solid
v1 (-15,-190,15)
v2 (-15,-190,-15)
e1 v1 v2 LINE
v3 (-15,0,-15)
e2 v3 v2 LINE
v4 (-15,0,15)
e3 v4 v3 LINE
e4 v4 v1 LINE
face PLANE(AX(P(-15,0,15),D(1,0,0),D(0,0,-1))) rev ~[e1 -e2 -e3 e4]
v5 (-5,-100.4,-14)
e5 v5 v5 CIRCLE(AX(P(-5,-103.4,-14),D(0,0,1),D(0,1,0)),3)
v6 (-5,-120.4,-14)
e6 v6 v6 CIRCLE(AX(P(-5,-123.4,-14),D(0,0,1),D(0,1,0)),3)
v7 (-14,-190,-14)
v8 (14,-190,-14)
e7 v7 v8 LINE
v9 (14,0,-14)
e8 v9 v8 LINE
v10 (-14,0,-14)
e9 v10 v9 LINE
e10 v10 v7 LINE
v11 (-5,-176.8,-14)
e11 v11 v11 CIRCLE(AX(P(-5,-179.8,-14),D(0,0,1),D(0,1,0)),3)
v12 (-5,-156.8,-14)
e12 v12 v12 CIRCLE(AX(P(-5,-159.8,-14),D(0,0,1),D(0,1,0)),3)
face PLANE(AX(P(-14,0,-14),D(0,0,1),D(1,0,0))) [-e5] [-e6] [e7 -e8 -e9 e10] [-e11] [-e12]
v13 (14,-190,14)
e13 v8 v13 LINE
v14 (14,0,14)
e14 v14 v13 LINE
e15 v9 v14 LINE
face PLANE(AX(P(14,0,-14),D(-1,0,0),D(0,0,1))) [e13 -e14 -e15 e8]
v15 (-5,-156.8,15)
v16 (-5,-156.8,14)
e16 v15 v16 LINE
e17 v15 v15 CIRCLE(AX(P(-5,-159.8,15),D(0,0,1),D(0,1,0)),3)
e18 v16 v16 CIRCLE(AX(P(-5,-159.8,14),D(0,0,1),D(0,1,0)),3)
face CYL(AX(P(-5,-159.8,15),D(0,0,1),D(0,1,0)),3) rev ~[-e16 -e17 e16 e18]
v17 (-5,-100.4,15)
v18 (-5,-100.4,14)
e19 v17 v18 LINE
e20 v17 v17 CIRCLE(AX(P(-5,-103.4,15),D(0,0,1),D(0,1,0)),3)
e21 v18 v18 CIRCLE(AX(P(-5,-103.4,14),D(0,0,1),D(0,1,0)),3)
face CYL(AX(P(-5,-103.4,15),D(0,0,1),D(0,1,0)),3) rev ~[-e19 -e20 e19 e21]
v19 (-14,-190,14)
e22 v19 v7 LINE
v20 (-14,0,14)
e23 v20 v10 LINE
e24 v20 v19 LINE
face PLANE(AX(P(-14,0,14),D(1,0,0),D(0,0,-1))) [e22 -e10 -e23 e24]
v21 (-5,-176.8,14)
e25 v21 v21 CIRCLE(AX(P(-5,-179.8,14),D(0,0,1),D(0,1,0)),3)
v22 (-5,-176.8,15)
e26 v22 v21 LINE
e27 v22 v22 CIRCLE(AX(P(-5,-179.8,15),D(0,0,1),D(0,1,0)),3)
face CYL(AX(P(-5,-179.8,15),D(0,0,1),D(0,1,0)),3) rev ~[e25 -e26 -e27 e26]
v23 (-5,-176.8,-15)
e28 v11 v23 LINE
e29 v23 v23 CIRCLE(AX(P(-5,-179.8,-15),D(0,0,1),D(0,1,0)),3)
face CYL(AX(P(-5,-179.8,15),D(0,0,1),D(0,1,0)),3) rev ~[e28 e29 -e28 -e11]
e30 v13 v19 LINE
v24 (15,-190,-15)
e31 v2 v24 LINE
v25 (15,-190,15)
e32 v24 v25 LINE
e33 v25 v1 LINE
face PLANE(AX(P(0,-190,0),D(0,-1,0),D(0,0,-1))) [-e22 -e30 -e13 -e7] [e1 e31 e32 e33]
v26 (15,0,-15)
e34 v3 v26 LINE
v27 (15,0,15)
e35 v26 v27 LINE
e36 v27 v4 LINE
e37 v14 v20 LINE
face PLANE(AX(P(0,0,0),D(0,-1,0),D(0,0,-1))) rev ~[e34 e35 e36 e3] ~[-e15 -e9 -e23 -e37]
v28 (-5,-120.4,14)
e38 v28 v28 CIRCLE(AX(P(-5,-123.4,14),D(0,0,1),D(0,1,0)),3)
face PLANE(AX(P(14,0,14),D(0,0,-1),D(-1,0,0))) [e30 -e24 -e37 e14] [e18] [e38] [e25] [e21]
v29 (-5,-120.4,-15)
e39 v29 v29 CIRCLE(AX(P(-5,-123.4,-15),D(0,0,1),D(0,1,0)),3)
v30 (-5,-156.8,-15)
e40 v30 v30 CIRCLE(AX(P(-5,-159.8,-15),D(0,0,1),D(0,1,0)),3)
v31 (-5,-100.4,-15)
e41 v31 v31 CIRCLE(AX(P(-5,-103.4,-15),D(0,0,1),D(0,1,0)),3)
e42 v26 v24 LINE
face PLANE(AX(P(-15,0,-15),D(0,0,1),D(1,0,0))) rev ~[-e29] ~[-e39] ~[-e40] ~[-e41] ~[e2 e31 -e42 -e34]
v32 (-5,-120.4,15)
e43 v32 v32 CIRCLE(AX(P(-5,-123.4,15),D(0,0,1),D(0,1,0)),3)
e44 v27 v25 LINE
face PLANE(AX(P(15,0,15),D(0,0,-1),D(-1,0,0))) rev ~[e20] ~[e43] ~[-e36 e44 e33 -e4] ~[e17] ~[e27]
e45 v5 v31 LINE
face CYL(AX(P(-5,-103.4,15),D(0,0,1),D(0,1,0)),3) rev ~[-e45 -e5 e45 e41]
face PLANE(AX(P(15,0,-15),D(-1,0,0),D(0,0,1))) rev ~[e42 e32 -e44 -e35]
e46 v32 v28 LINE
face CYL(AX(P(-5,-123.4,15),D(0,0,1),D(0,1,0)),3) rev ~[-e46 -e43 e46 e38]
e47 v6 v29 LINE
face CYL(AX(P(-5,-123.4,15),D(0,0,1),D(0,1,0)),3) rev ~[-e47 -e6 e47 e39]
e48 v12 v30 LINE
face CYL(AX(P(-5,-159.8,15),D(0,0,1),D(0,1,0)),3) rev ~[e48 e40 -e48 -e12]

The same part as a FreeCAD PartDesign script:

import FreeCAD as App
import Part
import Sketcher

V = App.Vector

doc = App.newDocument("Part")
body = doc.addObject("PartDesign::Body", "Body")

# Sketch on XZ plane
sketch1 = body.newObject("Sketcher::SketchObject", "Sketch")
sketch1.AttachmentSupport = (doc.getObject("XZ_Plane"), [""])
sketch1.MapMode = "FlatFace"
sketch1.addGeometry([
    Part.LineSegment(V(15, 15, 0), V(-15, 15, 0)),  # 0
    Part.LineSegment(V(-15, 15, 0), V(-15, -15, 0)),  # 1
    Part.LineSegment(V(-15, -15, 0), V(15, -15, 0)),  # 2
    Part.LineSegment(V(15, -15, 0), V(15, 15, 0)),  # 3
    Part.LineSegment(V(-14, -14, 0), V(-14, 14, 0)),  # 4
    Part.LineSegment(V(-14, 14, 0), V(14, 14, 0)),  # 5
    Part.LineSegment(V(14, 14, 0), V(14, -14, 0)),  # 6
    Part.LineSegment(V(14, -14, 0), V(-14, -14, 0)),  # 7
], False)
sketch1.addConstraint([
    Sketcher.Constraint("Coincident", 0, 2, 1, 1),
    Sketcher.Constraint("Coincident", 1, 2, 2, 1),
    Sketcher.Constraint("Coincident", 2, 2, 3, 1),
    Sketcher.Constraint("Coincident", 3, 2, 0, 1),
    Sketcher.Constraint("Coincident", 4, 2, 5, 1),
    Sketcher.Constraint("Coincident", 5, 2, 6, 1),
    Sketcher.Constraint("Coincident", 6, 2, 7, 1),
    Sketcher.Constraint("Coincident", 7, 2, 4, 1),
    Sketcher.Constraint("Horizontal", 0),
    Sketcher.Constraint("Vertical", 1),
    Sketcher.Constraint("Horizontal", 2),
    Sketcher.Constraint("Vertical", 3),
    Sketcher.Constraint("Vertical", 4),
    Sketcher.Constraint("Horizontal", 5),
    Sketcher.Constraint("Vertical", 6),
    Sketcher.Constraint("Horizontal", 7),
    Sketcher.Constraint("Symmetric", 0, 2, 2, 2, -1, 1),
    Sketcher.Constraint("Symmetric", 4, 2, 6, 2, -1, 1),
    Sketcher.Constraint("Equal", 2, 1),
    Sketcher.Constraint("Equal", 7, 4),
    Sketcher.Constraint("DistanceX", 0, 2, 0, 1, 30.0),
    Sketcher.Constraint("DistanceX", 5, 1, 5, 2, 28.0),
])
pad1 = body.newObject("PartDesign::Pad", "Pad")
pad1.Profile = sketch1
pad1.Length = 190

# Sketch on XY plane
sketch2 = body.newObject("Sketcher::SketchObject", "Sketch001")
sketch2.AttachmentSupport = (doc.getObject("XY_Plane"), [""])
sketch2.MapMode = "FlatFace"
sketch2.AttachmentOffset = App.Placement(V(0, 0, 15), App.Rotation())
sketch2.addGeometry([
    Part.Circle(V(-5, -103.4, 0), V(0, 0, 1), 3),
    Part.Circle(V(-5, -123.4, 0), V(0, 0, 1), 3),
    Part.Circle(V(-5, -159.8, 0), V(0, 0, 1), 3),
    Part.Circle(V(-5, -179.8, 0), V(0, 0, 1), 3),
], False)
sketch2.addConstraint([
    Sketcher.Constraint("Equal", 0, 1),
    Sketcher.Constraint("Equal", 1, 2),
    Sketcher.Constraint("Equal", 2, 3),
    Sketcher.Constraint("Vertical", 0, 3, 1, 3),
    Sketcher.Constraint("Vertical", 1, 3, 2, 3),
    Sketcher.Constraint("Vertical", 2, 3, 3, 3),
    Sketcher.Constraint("Diameter", 0, 6.0),
    Sketcher.Constraint("DistanceX", 0, 3, -1, 1, 5.0),
    Sketcher.Constraint("DistanceY", 1, 3, 0, 3, 20.0),
    Sketcher.Constraint("DistanceY", 3, 3, 2, 3, 20.0),
    Sketcher.Constraint("DistanceY", 0, 3, -1, 1, 103.4),
    Sketcher.Constraint("DistanceY", 2, 3, -1, 1, 159.8),
])
pocket1 = body.newObject("PartDesign::Pocket", "Pocket")
pocket1.Profile = sketch2
pocket1.Length = 204.0165

doc.recompute()
